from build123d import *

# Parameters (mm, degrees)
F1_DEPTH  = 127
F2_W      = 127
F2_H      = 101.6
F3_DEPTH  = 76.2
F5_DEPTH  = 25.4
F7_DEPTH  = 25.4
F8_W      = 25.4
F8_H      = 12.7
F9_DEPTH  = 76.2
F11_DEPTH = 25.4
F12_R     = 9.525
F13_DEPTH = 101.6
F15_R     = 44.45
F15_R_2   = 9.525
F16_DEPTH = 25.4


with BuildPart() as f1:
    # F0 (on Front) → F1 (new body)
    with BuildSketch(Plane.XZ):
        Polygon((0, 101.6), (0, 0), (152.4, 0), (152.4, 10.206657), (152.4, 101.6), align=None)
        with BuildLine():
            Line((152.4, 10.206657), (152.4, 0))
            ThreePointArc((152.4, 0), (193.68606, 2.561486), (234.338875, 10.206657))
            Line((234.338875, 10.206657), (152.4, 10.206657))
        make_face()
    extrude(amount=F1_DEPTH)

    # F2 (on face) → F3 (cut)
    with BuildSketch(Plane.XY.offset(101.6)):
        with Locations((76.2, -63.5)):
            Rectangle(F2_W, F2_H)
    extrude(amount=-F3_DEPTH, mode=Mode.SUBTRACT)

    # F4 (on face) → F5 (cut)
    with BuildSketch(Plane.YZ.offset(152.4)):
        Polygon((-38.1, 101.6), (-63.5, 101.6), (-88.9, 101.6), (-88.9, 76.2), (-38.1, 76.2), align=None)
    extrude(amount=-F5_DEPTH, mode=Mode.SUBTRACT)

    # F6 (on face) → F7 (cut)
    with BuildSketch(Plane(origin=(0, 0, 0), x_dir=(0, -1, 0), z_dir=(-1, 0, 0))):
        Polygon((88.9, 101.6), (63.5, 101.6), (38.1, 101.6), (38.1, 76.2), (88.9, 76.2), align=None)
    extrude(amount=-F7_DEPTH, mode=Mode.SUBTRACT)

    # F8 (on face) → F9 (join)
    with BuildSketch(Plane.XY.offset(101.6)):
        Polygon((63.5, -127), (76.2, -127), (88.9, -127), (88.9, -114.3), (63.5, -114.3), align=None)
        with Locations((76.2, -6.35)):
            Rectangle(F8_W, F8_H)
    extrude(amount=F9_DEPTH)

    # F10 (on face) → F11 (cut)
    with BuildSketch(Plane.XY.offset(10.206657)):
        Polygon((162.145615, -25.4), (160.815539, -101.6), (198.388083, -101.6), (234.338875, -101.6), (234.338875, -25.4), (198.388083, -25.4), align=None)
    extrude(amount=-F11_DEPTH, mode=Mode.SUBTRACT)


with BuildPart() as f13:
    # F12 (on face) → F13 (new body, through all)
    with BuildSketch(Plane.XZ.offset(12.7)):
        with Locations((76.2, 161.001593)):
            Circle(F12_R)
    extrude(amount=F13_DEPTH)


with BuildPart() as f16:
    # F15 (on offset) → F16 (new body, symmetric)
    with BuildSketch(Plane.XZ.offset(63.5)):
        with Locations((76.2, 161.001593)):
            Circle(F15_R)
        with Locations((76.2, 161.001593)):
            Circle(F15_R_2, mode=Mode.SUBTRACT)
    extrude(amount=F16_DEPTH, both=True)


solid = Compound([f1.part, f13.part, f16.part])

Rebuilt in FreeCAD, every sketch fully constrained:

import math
import FreeCAD as App
import Part
import Sketcher
Q = App.Units.Quantity


def add_polygon(sketch, points):
    """Adds a closed chain of lines whose ends are joined by coincident constraints."""
    first, n = sketch.GeometryCount, len(points)
    for a, b in zip(points, points[1:] + points[:1]):
        sketch.addGeometry(Part.LineSegment(App.Vector(*a, 0), App.Vector(*b, 0)), False)
    for i in range(n):
        sketch.addConstraint(Sketcher.Constraint("Coincident", first + i, 2, first + (i + 1) % n, 1))

doc = App.newDocument("Part")
body = doc.addObject("PartDesign::Body", "Body")

# Sketch on XZ plane
sketch1 = body.newObject("Sketcher::SketchObject", "Sketch")
sketch1.AttachmentSupport = (doc.getObject("XZ_Plane"), [""])
sketch1.MapMode = "FlatFace"
sketch1.addGeometry(Part.LineSegment(App.Vector(0, 102, 0), App.Vector(0, 0, 0)), False)
sketch1.addGeometry(Part.LineSegment(App.Vector(0, 0, 0), App.Vector(152, 0, 0)), False)
sketch1.addGeometry(Part.ArcOfCircle(Part.Circle(App.Vector(152, 334, 0), App.Vector(0, 0, 1), 334), math.radians(-90), math.radians(-75.8)), False)
sketch1.addGeometry(Part.LineSegment(App.Vector(234, 10, 0), App.Vector(152, 10, 0)), False)
sketch1.addGeometry(Part.LineSegment(App.Vector(152, 10, 0), App.Vector(152, 102, 0)), False)
sketch1.addGeometry(Part.LineSegment(App.Vector(152, 102, 0), App.Vector(0, 102, 0)), False)
sketch1.addConstraint(Sketcher.Constraint("Coincident", 0, 2, 1, 1))
sketch1.addConstraint(Sketcher.Constraint("Tangent", 1, 2, 2, 1))
sketch1.addConstraint(Sketcher.Constraint("Coincident", 2, 2, 3, 1))
sketch1.addConstraint(Sketcher.Constraint("Coincident", 3, 2, 4, 1))
sketch1.addConstraint(Sketcher.Constraint("Coincident", 4, 2, 5, 1))
sketch1.addConstraint(Sketcher.Constraint("Coincident", 5, 2, 0, 1))
sketch1.addConstraint(Sketcher.Constraint("Vertical", 0))
sketch1.addConstraint(Sketcher.Constraint("Horizontal", 1))
sketch1.addConstraint(Sketcher.Constraint("Horizontal", 3))
sketch1.addConstraint(Sketcher.Constraint("Vertical", 4))
sketch1.addConstraint(Sketcher.Constraint("Horizontal", 5))
sketch1.addConstraint(Sketcher.Constraint("Coincident", 0, 2, -1, 1))
sketch1.addConstraint(Sketcher.Constraint("Vertical", 1, 2, 3, 2))
sketch1.addConstraint(Sketcher.Constraint("DistanceX", 1, 1, 1, 2, Q("6 in")))
sketch1.addConstraint(Sketcher.Constraint("DistanceY", 0, 2, 0, 1, Q("4 in")))
sketch1.addConstraint(Sketcher.Constraint("Radius", 2, 334.00527))
sketch1.addConstraint(Sketcher.Constraint("DistanceX", 3, 2, 3, 1, 81.938875))
pad1 = body.newObject("PartDesign::Pad", "Pad")
pad1.Profile = sketch1
pad1.Length = Q("5 in")

# Sketch on XY plane
sketch2 = body.newObject("Sketcher::SketchObject", "Sketch001")
sketch2.AttachmentSupport = (doc.getObject("XY_Plane"), [""])
sketch2.MapMode = "FlatFace"
sketch2.AttachmentOffset = App.Placement(App.Vector(0, 0, 4 * 25.4), App.Rotation())
add_polygon(sketch2, [(13, -13), (13, -114), (140, -114), (140, -13)])  # lines 0-3
sketch2.addConstraint(Sketcher.Constraint("Vertical", 0))
sketch2.addConstraint(Sketcher.Constraint("Horizontal", 1))
sketch2.addConstraint(Sketcher.Constraint("Vertical", 2))
sketch2.addConstraint(Sketcher.Constraint("Horizontal", 3))
sketch2.addConstraint(Sketcher.Constraint("DistanceX", 1, 1, 1, 2, Q("5 in")))
sketch2.addConstraint(Sketcher.Constraint("DistanceY", 0, 2, 0, 1, Q("4 in")))
sketch2.addConstraint(Sketcher.Constraint("DistanceX", -1, 1, 0, 2, Q("0.5 in")))
sketch2.addConstraint(Sketcher.Constraint("DistanceY", 0, 2, -1, 1, Q("4.5 in")))
pocket1 = body.newObject("PartDesign::Pocket", "Pocket")
pocket1.Profile = sketch2
pocket1.Length = Q("3 in")

# Sketch on YZ plane
sketch3 = body.newObject("Sketcher::SketchObject", "Sketch002")
sketch3.AttachmentSupport = (doc.getObject("YZ_Plane"), [""])
sketch3.MapMode = "FlatFace"
sketch3.AttachmentOffset = App.Placement(App.Vector(0, 0, 6 * 25.4), App.Rotation())
add_polygon(sketch3, [(-38, 102), (-89, 102), (-89, 76), (-38, 76)])  # lines 0-3
sketch3.addConstraint(Sketcher.Constraint("Horizontal", 0))
sketch3.addConstraint(Sketcher.Constraint("Vertical", 1))
sketch3.addConstraint(Sketcher.Constraint("Horizontal", 2))
sketch3.addConstraint(Sketcher.Constraint("Vertical", 3))
sketch3.addConstraint(Sketcher.Constraint("DistanceX", 0, 2, 0, 1, Q("2 in")))
sketch3.addConstraint(Sketcher.Constraint("DistanceY", 1, 2, 1, 1, Q("1 in")))
sketch3.addConstraint(Sketcher.Constraint("DistanceY", -1, 1, 0, 2, Q("4 in")))
sketch3.addConstraint(Sketcher.Constraint("DistanceX", 0, 2, -1, 1, Q("3.5 in")))
pocket2 = body.newObject("PartDesign::Pocket", "Pocket001")
pocket2.Profile = sketch3
pocket2.Length = Q("1 in")

# Sketch on YZ plane
sketch4 = body.newObject("Sketcher::SketchObject", "Sketch003")
sketch4.AttachmentSupport = (doc.getObject("YZ_Plane"), [""])
sketch4.MapMode = "FlatFace"
add_polygon(sketch4, [(-89, 102), (-38, 102), (-38, 76), (-89, 76)])  # lines 0-3
sketch4.addConstraint(Sketcher.Constraint("Horizontal", 0))
sketch4.addConstraint(Sketcher.Constraint("Vertical", 1))
sketch4.addConstraint(Sketcher.Constraint("Horizontal", 2))
sketch4.addConstraint(Sketcher.Constraint("Vertical", 3))
sketch4.addConstraint(Sketcher.Constraint("DistanceX", 0, 1, 0, 2, Q("2 in")))
sketch4.addConstraint(Sketcher.Constraint("DistanceY", 1, 2, 1, 1, Q("1 in")))
sketch4.addConstraint(Sketcher.Constraint("DistanceY", -1, 1, 0, 2, Q("4 in")))
sketch4.addConstraint(Sketcher.Constraint("DistanceX", 0, 2, -1, 1, Q("1.5 in")))
pocket3 = body.newObject("PartDesign::Pocket", "Pocket002")
pocket3.Profile = sketch4
pocket3.Length = Q("1 in")
pocket3.Reversed = True

# Sketch on XY plane
sketch5 = body.newObject("Sketcher::SketchObject", "Sketch004")
sketch5.AttachmentSupport = (doc.getObject("XY_Plane"), [""])
sketch5.MapMode = "FlatFace"
sketch5.AttachmentOffset = App.Placement(App.Vector(0, 0, 4 * 25.4), App.Rotation())
add_polygon(sketch5, [(64, -127), (89, -127), (89, -114), (64, -114)])  # lines 0-3
add_polygon(sketch5, [(64, 0), (64, -13), (89, -13), (89, 0)])  # lines 4-7
sketch5.addConstraint(Sketcher.Constraint("Horizontal", 0))
sketch5.addConstraint(Sketcher.Constraint("Vertical", 1))
sketch5.addConstraint(Sketcher.Constraint("Horizontal", 2))
sketch5.addConstraint(Sketcher.Constraint("Vertical", 3))
sketch5.addConstraint(Sketcher.Constraint("Vertical", 4))
sketch5.addConstraint(Sketcher.Constraint("Horizontal", 5))
sketch5.addConstraint(Sketcher.Constraint("Vertical", 6))
sketch5.addConstraint(Sketcher.Constraint("Horizontal", 7))
sketch5.addConstraint(Sketcher.Constraint("PointOnObject", 6, 2, -1))
sketch5.addConstraint(Sketcher.Constraint("Vertical", 3, 2, 4, 2))
sketch5.addConstraint(Sketcher.Constraint("Vertical", 1, 2, 5, 2))
sketch5.addConstraint(Sketcher.Constraint("Equal", 3, 4))
sketch5.addConstraint(Sketcher.Constraint("DistanceX", 0, 1, 0, 2, Q("1 in")))
sketch5.addConstraint(Sketcher.Constraint("DistanceY", 1, 1, 1, 2, Q("0.5 in")))
sketch5.addConstraint(Sketcher.Constraint("DistanceY", 0, 2, -1, 1, Q("5 in")))
sketch5.addConstraint(Sketcher.Constraint("DistanceX", -1, 1, 0, 2, Q("3.5 in")))
pad2 = body.newObject("PartDesign::Pad", "Pad001")
pad2.Profile = sketch5
pad2.Length = Q("3 in")

# Sketch on XY plane
sketch6 = body.newObject("Sketcher::SketchObject", "Sketch005")
sketch6.AttachmentSupport = (doc.getObject("XY_Plane"), [""])
sketch6.MapMode = "FlatFace"
sketch6.AttachmentOffset = App.Placement(App.Vector(0, 0, 10.206657), App.Rotation())
add_polygon(sketch6, [(162, -25), (161, -102), (234, -102), (234, -25)])  # lines 0-3
sketch6.addConstraint(Sketcher.Constraint("Horizontal", 1))
sketch6.addConstraint(Sketcher.Constraint("Vertical", 2))
sketch6.addConstraint(Sketcher.Constraint("Horizontal", 3))
sketch6.addConstraint(Sketcher.Constraint("DistanceY", 2, 1, 2, 2, Q("3 in")))
sketch6.addConstraint(Sketcher.Constraint("DistanceY", 0, 2, -1, 1, Q("4 in")))
sketch6.addConstraint(Sketcher.Constraint("Angle", 0, Q("-91 deg")))
sketch6.addConstraint(Sketcher.Constraint("DistanceX", 3, 2, 3, 1, 72.19326))
sketch6.addConstraint(Sketcher.Constraint("DistanceX", -1, 1, 0, 2, 160.815539))
pocket4 = body.newObject("PartDesign::Pocket", "Pocket003")
pocket4.Profile = sketch6
pocket4.Length = Q("1 in")
body2 = doc.addObject("PartDesign::Body", "Body001")

# Sketch on XZ plane
sketch7 = body2.newObject("Sketcher::SketchObject", "Sketch006")
sketch7.AttachmentSupport = (doc.getObject("XZ_Plane001"), [""])
sketch7.MapMode = "FlatFace"
sketch7.AttachmentOffset = App.Placement(App.Vector(0, 0, 0.5 * 25.4), App.Rotation())
sketch7.addGeometry(Part.Circle(App.Vector(76, 161, 0), App.Vector(0, 0, 1), 10), False)
sketch7.addConstraint(Sketcher.Constraint("Diameter", 0, Q("0.75 in")))
sketch7.addConstraint(Sketcher.Constraint("DistanceX", -1, 1, 0, 3, Q("3 in")))
sketch7.addConstraint(Sketcher.Constraint("DistanceY", -1, 1, 0, 3, 161.001593))
pad3 = body2.newObject("PartDesign::Pad", "Pad002")
pad3.Profile = sketch7
pad3.Length = Q("4 in")
body3 = doc.addObject("PartDesign::Body", "Body002")

# Sketch on XZ plane
sketch8 = body3.newObject("Sketcher::SketchObject", "Sketch007")
sketch8.AttachmentSupport = (doc.getObject("XZ_Plane002"), [""])
sketch8.MapMode = "FlatFace"
sketch8.AttachmentOffset = App.Placement(App.Vector(0, 0, 2.5 * 25.4), App.Rotation())
sketch8.addGeometry(Part.Circle(App.Vector(76, 161, 0), App.Vector(0, 0, 1), 44), False)
sketch8.addGeometry(Part.Circle(App.Vector(76, 161, 0), App.Vector(0, 0, 1), 10), False)
sketch8.addConstraint(Sketcher.Constraint("Coincident", 1, 3, 0, 3))
sketch8.addConstraint(Sketcher.Constraint("Diameter", 0, Q("3.5 in")))
sketch8.addConstraint(Sketcher.Constraint("Diameter", 1, Q("0.75 in")))
sketch8.addConstraint(Sketcher.Constraint("DistanceX", -1, 1, 0, 3, Q("3 in")))
sketch8.addConstraint(Sketcher.Constraint("DistanceY", -1, 1, 0, 3, 161.001593))
pad4 = body3.newObject("PartDesign::Pad", "Pad003")
pad4.Profile = sketch8
pad4.Length = Q("2 in")
pad4.Midplane = True

doc.recompute()
